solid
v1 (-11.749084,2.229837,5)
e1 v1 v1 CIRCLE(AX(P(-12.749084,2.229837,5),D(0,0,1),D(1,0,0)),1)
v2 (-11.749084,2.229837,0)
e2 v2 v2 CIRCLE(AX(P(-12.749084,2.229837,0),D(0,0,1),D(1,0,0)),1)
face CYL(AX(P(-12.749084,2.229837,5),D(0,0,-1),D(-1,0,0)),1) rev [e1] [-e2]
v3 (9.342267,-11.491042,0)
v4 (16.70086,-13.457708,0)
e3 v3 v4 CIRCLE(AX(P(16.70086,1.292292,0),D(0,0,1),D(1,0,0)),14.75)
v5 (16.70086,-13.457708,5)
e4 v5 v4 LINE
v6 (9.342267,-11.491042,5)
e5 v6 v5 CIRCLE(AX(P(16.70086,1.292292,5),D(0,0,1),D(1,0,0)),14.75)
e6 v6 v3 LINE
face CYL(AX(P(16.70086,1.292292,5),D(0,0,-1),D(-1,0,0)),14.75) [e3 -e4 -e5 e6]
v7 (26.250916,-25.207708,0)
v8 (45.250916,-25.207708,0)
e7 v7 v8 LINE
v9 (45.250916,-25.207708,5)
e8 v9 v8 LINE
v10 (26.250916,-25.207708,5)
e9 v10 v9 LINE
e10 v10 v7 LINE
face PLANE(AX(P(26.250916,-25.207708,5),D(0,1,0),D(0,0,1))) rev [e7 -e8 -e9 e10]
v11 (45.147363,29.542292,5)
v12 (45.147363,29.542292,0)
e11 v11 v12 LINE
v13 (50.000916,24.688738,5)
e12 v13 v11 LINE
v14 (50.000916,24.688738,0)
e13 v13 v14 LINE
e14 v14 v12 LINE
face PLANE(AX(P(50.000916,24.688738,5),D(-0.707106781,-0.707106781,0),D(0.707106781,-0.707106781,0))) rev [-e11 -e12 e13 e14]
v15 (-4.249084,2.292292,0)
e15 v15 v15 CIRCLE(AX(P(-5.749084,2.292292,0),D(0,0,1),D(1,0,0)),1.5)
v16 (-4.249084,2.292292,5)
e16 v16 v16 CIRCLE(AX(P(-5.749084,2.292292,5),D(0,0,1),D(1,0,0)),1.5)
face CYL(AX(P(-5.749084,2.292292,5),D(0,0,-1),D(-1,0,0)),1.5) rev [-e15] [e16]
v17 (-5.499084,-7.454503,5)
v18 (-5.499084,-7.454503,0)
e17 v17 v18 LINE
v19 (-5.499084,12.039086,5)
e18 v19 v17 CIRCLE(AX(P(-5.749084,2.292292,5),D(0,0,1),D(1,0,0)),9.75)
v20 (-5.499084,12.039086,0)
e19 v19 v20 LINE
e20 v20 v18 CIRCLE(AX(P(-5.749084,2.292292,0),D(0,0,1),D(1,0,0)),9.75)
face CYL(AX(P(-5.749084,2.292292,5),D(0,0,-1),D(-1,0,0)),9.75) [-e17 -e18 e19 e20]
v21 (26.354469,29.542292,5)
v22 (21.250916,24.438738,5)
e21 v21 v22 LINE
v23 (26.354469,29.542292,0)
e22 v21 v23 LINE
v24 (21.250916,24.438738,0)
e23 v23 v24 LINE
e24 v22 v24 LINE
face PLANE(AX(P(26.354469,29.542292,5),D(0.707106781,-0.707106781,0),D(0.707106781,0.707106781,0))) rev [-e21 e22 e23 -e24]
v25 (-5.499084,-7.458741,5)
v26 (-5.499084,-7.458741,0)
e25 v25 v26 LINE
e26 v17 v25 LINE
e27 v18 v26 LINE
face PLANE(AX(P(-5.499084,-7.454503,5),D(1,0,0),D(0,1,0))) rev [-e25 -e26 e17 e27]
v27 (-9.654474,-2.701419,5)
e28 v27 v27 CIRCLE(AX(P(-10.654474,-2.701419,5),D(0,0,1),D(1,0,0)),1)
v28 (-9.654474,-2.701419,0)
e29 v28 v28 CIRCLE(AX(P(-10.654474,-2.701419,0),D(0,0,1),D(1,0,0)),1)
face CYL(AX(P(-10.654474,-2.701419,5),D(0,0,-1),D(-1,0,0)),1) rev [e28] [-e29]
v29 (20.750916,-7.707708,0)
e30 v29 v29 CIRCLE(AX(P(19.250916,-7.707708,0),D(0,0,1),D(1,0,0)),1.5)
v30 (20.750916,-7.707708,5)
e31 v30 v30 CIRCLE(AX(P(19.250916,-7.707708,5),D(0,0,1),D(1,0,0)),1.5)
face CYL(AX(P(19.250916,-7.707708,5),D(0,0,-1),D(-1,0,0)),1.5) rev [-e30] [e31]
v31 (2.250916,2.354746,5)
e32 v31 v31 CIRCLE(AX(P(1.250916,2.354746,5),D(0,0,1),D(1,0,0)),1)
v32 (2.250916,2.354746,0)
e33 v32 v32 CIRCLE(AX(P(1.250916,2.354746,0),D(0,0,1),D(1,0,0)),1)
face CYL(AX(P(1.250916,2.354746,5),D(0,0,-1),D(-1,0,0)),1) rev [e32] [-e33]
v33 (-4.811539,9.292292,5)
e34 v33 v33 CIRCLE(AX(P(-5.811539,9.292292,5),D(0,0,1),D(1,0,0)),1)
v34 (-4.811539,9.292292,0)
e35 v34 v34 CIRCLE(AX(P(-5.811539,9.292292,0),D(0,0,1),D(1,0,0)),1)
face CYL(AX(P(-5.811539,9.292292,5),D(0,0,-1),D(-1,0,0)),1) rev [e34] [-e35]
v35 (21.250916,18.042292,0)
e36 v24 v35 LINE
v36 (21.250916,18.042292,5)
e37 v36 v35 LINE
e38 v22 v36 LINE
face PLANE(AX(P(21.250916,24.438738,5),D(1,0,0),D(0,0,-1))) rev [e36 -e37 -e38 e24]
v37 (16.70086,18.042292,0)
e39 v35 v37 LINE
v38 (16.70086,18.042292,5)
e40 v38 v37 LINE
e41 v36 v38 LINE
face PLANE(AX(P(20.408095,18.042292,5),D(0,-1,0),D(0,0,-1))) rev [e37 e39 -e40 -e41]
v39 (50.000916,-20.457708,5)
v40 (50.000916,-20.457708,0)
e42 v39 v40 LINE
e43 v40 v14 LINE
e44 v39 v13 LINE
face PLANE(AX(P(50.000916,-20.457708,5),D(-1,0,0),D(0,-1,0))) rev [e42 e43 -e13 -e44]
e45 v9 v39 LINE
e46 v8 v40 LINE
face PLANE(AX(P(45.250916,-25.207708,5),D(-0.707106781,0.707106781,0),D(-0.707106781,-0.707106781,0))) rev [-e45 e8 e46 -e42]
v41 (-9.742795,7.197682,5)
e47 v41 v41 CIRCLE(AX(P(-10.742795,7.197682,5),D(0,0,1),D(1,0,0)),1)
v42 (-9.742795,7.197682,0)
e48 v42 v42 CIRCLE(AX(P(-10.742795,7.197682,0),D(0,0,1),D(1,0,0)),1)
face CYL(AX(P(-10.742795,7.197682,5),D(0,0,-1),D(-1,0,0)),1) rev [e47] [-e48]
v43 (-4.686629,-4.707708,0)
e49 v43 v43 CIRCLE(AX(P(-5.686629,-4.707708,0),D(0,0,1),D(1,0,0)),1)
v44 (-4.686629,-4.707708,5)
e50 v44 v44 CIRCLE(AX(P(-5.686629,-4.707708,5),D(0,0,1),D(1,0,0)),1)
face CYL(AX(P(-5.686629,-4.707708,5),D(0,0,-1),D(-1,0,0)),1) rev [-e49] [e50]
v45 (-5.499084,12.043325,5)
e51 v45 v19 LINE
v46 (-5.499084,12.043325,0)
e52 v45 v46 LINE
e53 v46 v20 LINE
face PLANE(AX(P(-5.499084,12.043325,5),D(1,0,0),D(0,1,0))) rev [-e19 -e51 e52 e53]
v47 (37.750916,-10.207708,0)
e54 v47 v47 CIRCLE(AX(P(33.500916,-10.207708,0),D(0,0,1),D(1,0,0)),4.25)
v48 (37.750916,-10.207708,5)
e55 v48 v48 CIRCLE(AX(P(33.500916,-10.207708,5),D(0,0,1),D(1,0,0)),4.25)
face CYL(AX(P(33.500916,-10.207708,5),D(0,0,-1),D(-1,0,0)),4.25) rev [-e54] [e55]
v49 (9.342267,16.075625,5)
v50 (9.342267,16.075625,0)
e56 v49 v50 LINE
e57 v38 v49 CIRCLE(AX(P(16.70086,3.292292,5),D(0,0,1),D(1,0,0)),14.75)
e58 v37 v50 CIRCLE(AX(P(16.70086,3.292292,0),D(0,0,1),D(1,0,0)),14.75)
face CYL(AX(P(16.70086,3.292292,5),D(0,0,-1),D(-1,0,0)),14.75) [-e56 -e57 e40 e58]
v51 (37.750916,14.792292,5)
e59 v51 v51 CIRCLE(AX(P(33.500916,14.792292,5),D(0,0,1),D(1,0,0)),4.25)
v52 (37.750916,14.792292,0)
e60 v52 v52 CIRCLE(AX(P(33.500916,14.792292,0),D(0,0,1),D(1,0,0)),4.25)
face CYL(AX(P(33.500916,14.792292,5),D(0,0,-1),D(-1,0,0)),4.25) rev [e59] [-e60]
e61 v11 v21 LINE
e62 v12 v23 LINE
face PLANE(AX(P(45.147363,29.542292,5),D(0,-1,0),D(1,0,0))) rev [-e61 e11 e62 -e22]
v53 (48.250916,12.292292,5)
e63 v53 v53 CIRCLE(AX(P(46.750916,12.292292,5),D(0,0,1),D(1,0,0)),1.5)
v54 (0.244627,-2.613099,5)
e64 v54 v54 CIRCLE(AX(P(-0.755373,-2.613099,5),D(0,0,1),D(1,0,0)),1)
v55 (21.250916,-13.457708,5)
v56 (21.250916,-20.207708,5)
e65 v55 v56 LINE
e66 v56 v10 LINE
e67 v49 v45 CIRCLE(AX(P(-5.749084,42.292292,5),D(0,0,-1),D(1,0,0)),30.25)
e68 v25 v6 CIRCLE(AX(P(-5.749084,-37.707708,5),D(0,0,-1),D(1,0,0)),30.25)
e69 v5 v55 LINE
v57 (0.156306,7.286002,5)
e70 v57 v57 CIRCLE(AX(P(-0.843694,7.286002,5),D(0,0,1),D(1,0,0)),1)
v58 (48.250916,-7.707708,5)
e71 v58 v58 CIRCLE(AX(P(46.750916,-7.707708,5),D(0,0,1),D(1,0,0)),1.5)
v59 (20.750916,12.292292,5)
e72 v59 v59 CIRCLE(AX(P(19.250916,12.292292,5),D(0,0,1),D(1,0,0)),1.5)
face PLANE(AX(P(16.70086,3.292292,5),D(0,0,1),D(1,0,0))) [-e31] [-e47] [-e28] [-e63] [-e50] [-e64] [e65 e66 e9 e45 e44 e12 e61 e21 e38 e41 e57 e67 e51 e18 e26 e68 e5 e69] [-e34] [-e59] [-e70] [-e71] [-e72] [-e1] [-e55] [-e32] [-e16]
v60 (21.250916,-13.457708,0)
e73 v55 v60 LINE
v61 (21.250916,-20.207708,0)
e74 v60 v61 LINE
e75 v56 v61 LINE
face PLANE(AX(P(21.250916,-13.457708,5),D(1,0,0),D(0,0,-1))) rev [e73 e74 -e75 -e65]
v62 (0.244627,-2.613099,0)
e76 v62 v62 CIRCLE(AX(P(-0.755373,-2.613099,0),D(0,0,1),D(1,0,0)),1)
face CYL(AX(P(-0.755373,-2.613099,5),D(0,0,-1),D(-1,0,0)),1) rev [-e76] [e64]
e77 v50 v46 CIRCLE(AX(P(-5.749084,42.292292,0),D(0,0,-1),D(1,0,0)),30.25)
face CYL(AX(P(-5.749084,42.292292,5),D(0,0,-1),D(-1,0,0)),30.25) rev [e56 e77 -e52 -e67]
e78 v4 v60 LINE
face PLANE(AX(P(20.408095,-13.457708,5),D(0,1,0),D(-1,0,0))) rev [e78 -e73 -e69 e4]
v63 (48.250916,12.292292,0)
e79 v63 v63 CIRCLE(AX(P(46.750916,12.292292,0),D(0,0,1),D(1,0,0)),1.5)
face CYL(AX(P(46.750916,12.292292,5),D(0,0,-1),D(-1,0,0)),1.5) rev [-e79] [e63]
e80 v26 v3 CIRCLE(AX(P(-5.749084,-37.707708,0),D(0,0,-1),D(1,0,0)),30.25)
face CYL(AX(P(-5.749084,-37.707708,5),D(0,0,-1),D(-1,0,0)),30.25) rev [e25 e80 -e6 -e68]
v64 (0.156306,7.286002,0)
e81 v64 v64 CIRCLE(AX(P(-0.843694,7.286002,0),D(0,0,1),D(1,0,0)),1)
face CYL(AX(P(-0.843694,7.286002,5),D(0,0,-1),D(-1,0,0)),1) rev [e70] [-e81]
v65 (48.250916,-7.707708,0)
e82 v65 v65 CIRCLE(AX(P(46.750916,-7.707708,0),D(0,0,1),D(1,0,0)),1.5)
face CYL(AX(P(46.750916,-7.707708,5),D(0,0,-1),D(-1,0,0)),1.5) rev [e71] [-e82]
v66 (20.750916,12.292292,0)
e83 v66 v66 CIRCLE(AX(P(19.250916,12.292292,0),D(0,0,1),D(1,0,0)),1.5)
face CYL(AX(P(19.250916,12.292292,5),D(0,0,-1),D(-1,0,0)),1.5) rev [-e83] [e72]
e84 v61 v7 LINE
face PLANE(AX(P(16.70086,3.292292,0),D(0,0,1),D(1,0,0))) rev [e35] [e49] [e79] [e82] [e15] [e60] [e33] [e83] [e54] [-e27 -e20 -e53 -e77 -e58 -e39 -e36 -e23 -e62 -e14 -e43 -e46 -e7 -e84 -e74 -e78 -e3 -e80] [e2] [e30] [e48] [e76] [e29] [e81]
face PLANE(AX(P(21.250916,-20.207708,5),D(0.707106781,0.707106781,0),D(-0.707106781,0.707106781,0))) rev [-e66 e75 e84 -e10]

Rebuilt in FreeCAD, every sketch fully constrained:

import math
import FreeCAD as App
import Part
import Sketcher
Q = App.Units.Quantity

doc = App.newDocument("Part")
body = doc.addObject("PartDesign::Body", "Body")

sketch1 = body.newObject("Sketcher::SketchObject", "Sketch")
sketch1.AttachmentSupport = (doc.getObject("XY_Plane"), [""])
sketch1.MapMode = "FlatFace"
sketch1.addGeometry([
    Part.LineSegment(App.Vector(45.2509, -25.2077, 0), App.Vector(50.0009, -20.4577, 0)),
    Part.LineSegment(App.Vector(50.0009, -20.4577, 0), App.Vector(50.0009, 24.6887, 0)),
    Part.LineSegment(App.Vector(50.0009, 24.6887, 0), App.Vector(45.1474, 29.5423, 0)),
    Part.LineSegment(App.Vector(45.1474, 29.5423, 0), App.Vector(26.3545, 29.5423, 0)),
    Part.LineSegment(App.Vector(26.3545, 29.5423, 0), App.Vector(21.2509, 24.4387, 0)),
    Part.LineSegment(App.Vector(21.2509, 24.4387, 0), App.Vector(21.2509, 18.0423, 0)),
    Part.LineSegment(App.Vector(21.2509, 18.0423, 0), App.Vector(16.7009, 18.0423, 0)),
    Part.ArcOfCircle(Part.Circle(App.Vector(16.7009, 3.2923, 0), App.Vector(0, 0, 1), 14.75), math.radians(90), math.radians(120)),
    Part.ArcOfCircle(Part.Circle(App.Vector(-5.7491, 42.2923, 0), App.Vector(0, 0, 1), 30.25), math.radians(-90), math.radians(-60)),
    Part.LineSegment(App.Vector(-5.4991, 12.0433, 0), App.Vector(-5.4991, 12.0391, 0)),
    Part.ArcOfCircle(Part.Circle(App.Vector(-5.7491, 2.2923, 0), App.Vector(0, 0, 1), 9.75), math.radians(89), math.radians(271)),
    Part.LineSegment(App.Vector(-5.4991, -7.4545, 0), App.Vector(-5.4991, -7.4587, 0)),
    Part.ArcOfCircle(Part.Circle(App.Vector(-5.7491, -37.7077, 0), App.Vector(0, 0, 1), 30.25), math.radians(60), math.radians(90)),
    Part.ArcOfCircle(Part.Circle(App.Vector(16.7009, 1.2923, 0), App.Vector(0, 0, 1), 14.75), math.radians(-120), math.radians(-90)),
    Part.LineSegment(App.Vector(16.7009, -13.4577, 0), App.Vector(21.2509, -13.4577, 0)),
    Part.LineSegment(App.Vector(21.2509, -13.4577, 0), App.Vector(21.2509, -20.2077, 0)),
    Part.LineSegment(App.Vector(21.2509, -20.2077, 0), App.Vector(26.2509, -25.2077, 0)),
    Part.LineSegment(App.Vector(26.2509, -25.2077, 0), App.Vector(45.2509, -25.2077, 0)),
    Part.Circle(App.Vector(-10.6545, -2.7014, 0), App.Vector(0, 0, 1), 1),
    Part.Circle(App.Vector(-5.6866, -4.7077, 0), App.Vector(0, 0, 1), 1),
    Part.Circle(App.Vector(-0.7554, -2.6131, 0), App.Vector(0, 0, 1), 1),
    Part.Circle(App.Vector(-12.7491, 2.2298, 0), App.Vector(0, 0, 1), 1),
    Part.Circle(App.Vector(19.2509, -7.7077, 0), App.Vector(0, 0, 1), 1.5),
    Part.Circle(App.Vector(33.5009, -10.2077, 0), App.Vector(0, 0, 1), 4.25),
    Part.Circle(App.Vector(46.7509, -7.7077, 0), App.Vector(0, 0, 1), 1.5),
    Part.Circle(App.Vector(-5.7491, 2.2923, 0), App.Vector(0, 0, 1), 1.5),
    Part.Circle(App.Vector(1.2509, 2.3547, 0), App.Vector(0, 0, 1), 1),
    Part.Circle(App.Vector(-10.7428, 7.1977, 0), App.Vector(0, 0, 1), 1),
    Part.Circle(App.Vector(-0.8437, 7.286, 0), App.Vector(0, 0, 1), 1),
    Part.Circle(App.Vector(-5.8115, 9.2923, 0), App.Vector(0, 0, 1), 1),
    Part.Circle(App.Vector(19.2509, 12.2923, 0), App.Vector(0, 0, 1), 1.5),
    Part.Circle(App.Vector(33.5009, 14.7923, 0), App.Vector(0, 0, 1), 4.25),
    Part.Circle(App.Vector(46.7509, 12.2923, 0), App.Vector(0, 0, 1), 1.5),
], False)
sketch1.addConstraint([
    Sketcher.Constraint("Coincident", 0, 2, 1, 1),
    Sketcher.Constraint("Coincident", 1, 2, 2, 1),
    Sketcher.Constraint("Coincident", 2, 2, 3, 1),
    Sketcher.Constraint("Coincident", 3, 2, 4, 1),
    Sketcher.Constraint("Coincident", 4, 2, 5, 1),
    Sketcher.Constraint("Coincident", 5, 2, 6, 1),
    Sketcher.Constraint("Tangent", 6, 2, 7, 1),
    Sketcher.Constraint("Tangent", 7, 2, 8, 2),
    Sketcher.Constraint("Coincident", 8, 1, 9, 1),
    Sketcher.Constraint("Coincident", 9, 2, 10, 1),
    Sketcher.Constraint("Coincident", 10, 2, 11, 1),
    Sketcher.Constraint("Coincident", 11, 2, 12, 2),
    Sketcher.Constraint("Tangent", 12, 1, 13, 1),
    Sketcher.Constraint("Tangent", 13, 2, 14, 1),
    Sketcher.Constraint("Coincident", 14, 2, 15, 1),
    Sketcher.Constraint("Coincident", 15, 2, 16, 1),
    Sketcher.Constraint("Coincident", 16, 2, 17, 1),
    Sketcher.Constraint("Coincident", 17, 2, 0, 1),
    Sketcher.Constraint("Vertical", 1),
    Sketcher.Constraint("Horizontal", 3),
    Sketcher.Constraint("Vertical", 5),
    Sketcher.Constraint("Horizontal", 6),
    Sketcher.Constraint("Vertical", 9),
    Sketcher.Constraint("Vertical", 11),
    Sketcher.Constraint("Horizontal", 14),
    Sketcher.Constraint("Vertical", 15),
    Sketcher.Constraint("Horizontal", 17),
    Sketcher.Constraint("Coincident", 25, 3, 10, 3),
    Sketcher.Constraint("Equal", 8, 12),
    Sketcher.Constraint("Equal", 7, 13),
    Sketcher.Constraint("Equal", 18, 19),
    Sketcher.Constraint("Equal", 19, 20),
    Sketcher.Constraint("Equal", 20, 21),
    Sketcher.Constraint("Equal", 22, 24),
    Sketcher.Constraint("Equal", 24, 25),
    Sketcher.Constraint("Equal", 21, 26),
    Sketcher.Constraint("Equal", 26, 27),
    Sketcher.Constraint("Equal", 27, 28),
    Sketcher.Constraint("Equal", 28, 29),
    Sketcher.Constraint("Equal", 25, 30),
    Sketcher.Constraint("Equal", 23, 31),
    Sketcher.Constraint("Equal", 30, 32),
    Sketcher.Constraint("Perpendicular", 0, 2),
    Sketcher.Constraint("Perpendicular", 2, 4),
    Sketcher.Constraint("Perpendicular", 4, 16),
    Sketcher.Constraint("Horizontal", 22, 3, 24, 3),
    Sketcher.Constraint("Horizontal", 30, 3, 32, 3),
    Sketcher.Constraint("Vertical", 8, 3, 10, 3),
    Sketcher.Constraint("Vertical", 10, 3, 12, 3),
    Sketcher.Constraint("Vertical", 7, 3, 13, 3),
    Sketcher.Constraint("Vertical", 22, 3, 30, 3),
    Sketcher.Constraint("Vertical", 23, 3, 31, 3),
    Sketcher.Constraint("Vertical", 24, 3, 32, 3),
    Sketcher.Constraint("Vertical", 9, 2, 10, 2),
    Sketcher.Constraint("Vertical", 5, 2, 14, 2),
    Sketcher.Constraint("Equal", 9, 11),
    Sketcher.Constraint("Diameter", 18, 2.0),
    Sketcher.Constraint("Diameter", 22, 3.0),
    Sketcher.Constraint("Diameter", 23, 8.5),
    Sketcher.Constraint("DistanceX", 17, 1, 17, 2, 19.0),
    Sketcher.Constraint("Angle", 0, Q("45 deg")),
    Sketcher.Constraint("Radius", 7, 14.75),
    Sketcher.Constraint("Radius", 8, 30.25),
    Sketcher.Constraint("Radius", 10, 9.75),
    Sketcher.Constraint("DistanceY", 7, 3, 8, 3, 39.0),
    Sketcher.Constraint("DistanceY", 10, 3, 7, 3, 1.0),
    Sketcher.Constraint("DistanceY", 19, 3, 10, 3, 7.0),
    Sketcher.Constraint("DistanceX", 21, 3, 10, 3, 7.0),
    Sketcher.Constraint("DistanceY", 22, 3, 13, 3, 9.0),
    Sketcher.Constraint("DistanceX", 10, 3, 22, 3, 25.0),
    Sketcher.Constraint("DistanceX", 10, 3, 26, 3, 7.0),
    Sketcher.Constraint("DistanceY", 10, 3, 29, 3, 7.0),
    Sketcher.Constraint("DistanceY", 7, 3, 30, 3, 9.0),
    Sketcher.Constraint("DistanceY", 23, 3, 31, 3, 25.0),
    Sketcher.Constraint("DistanceX", 30, 3, 4, 2, 2.0),
    Sketcher.Constraint("DistanceY", 15, 2, 23, 3, 10.0),
    Sketcher.Constraint("DistanceX", 15, 2, 16, 2, 5.0),
    Sketcher.Constraint("DistanceY", 15, 2, 15, 1, 6.75),
    Sketcher.Constraint("DistanceX", 22, 3, 24, 3, 27.5),
    Sketcher.Constraint("DistanceX", 23, 3, 0, 2, 16.5),
    Sketcher.Constraint("DistanceY", 5, 2, 3, 2, 11.5),
    Sketcher.Constraint("DistanceX", 22, 3, 23, 3, 14.25),
    Sketcher.Constraint("DistanceX", 10, 3, 8, 1, 0.25),
    Sketcher.Constraint("DistanceY", 20, 3, -1, 1, 2.613099),
    Sketcher.Constraint("DistanceX", 18, 3, 20, 3, 9.899101),
    Sketcher.Constraint("DistanceY", 18, 3, 27, 3, 9.899101),
    Sketcher.Constraint("DistanceY", 20, 3, 28, 3, 9.899101),
    Sketcher.Constraint("DistanceX", 27, 3, 28, 3, 9.899101),
    Sketcher.Constraint("Distance", 2, 6.863961),
    Sketcher.Constraint("DistanceX", 3, 2, 3, 1, 18.792893),
    Sketcher.Constraint("DistanceX", -1, 1, 7, 3, 16.70086),
    Sketcher.Constraint("DistanceY", -1, 1, 7, 3, 3.292292),
    Sketcher.Constraint("DistanceY", 18, 3, -1, 1, 2.701419),
    Sketcher.Constraint("DistanceX", 19, 3, -1, 1, 5.686629),
    Sketcher.Constraint("DistanceX", 29, 3, -1, 1, 5.811539),
    Sketcher.Constraint("DistanceX", 18, 3, 10, 3, 4.90539),
    Sketcher.Constraint("DistanceX", 21, 3, 27, 3, 2.006289),
    Sketcher.Constraint("DistanceY", -1, 1, 21, 3, 2.229837),
    Sketcher.Constraint("DistanceY", -1, 1, 26, 3, 2.354746),
])
pad1 = body.newObject("PartDesign::Pad", "Pad")
pad1.Profile = sketch1
pad1.Length = 5

doc.recompute()
